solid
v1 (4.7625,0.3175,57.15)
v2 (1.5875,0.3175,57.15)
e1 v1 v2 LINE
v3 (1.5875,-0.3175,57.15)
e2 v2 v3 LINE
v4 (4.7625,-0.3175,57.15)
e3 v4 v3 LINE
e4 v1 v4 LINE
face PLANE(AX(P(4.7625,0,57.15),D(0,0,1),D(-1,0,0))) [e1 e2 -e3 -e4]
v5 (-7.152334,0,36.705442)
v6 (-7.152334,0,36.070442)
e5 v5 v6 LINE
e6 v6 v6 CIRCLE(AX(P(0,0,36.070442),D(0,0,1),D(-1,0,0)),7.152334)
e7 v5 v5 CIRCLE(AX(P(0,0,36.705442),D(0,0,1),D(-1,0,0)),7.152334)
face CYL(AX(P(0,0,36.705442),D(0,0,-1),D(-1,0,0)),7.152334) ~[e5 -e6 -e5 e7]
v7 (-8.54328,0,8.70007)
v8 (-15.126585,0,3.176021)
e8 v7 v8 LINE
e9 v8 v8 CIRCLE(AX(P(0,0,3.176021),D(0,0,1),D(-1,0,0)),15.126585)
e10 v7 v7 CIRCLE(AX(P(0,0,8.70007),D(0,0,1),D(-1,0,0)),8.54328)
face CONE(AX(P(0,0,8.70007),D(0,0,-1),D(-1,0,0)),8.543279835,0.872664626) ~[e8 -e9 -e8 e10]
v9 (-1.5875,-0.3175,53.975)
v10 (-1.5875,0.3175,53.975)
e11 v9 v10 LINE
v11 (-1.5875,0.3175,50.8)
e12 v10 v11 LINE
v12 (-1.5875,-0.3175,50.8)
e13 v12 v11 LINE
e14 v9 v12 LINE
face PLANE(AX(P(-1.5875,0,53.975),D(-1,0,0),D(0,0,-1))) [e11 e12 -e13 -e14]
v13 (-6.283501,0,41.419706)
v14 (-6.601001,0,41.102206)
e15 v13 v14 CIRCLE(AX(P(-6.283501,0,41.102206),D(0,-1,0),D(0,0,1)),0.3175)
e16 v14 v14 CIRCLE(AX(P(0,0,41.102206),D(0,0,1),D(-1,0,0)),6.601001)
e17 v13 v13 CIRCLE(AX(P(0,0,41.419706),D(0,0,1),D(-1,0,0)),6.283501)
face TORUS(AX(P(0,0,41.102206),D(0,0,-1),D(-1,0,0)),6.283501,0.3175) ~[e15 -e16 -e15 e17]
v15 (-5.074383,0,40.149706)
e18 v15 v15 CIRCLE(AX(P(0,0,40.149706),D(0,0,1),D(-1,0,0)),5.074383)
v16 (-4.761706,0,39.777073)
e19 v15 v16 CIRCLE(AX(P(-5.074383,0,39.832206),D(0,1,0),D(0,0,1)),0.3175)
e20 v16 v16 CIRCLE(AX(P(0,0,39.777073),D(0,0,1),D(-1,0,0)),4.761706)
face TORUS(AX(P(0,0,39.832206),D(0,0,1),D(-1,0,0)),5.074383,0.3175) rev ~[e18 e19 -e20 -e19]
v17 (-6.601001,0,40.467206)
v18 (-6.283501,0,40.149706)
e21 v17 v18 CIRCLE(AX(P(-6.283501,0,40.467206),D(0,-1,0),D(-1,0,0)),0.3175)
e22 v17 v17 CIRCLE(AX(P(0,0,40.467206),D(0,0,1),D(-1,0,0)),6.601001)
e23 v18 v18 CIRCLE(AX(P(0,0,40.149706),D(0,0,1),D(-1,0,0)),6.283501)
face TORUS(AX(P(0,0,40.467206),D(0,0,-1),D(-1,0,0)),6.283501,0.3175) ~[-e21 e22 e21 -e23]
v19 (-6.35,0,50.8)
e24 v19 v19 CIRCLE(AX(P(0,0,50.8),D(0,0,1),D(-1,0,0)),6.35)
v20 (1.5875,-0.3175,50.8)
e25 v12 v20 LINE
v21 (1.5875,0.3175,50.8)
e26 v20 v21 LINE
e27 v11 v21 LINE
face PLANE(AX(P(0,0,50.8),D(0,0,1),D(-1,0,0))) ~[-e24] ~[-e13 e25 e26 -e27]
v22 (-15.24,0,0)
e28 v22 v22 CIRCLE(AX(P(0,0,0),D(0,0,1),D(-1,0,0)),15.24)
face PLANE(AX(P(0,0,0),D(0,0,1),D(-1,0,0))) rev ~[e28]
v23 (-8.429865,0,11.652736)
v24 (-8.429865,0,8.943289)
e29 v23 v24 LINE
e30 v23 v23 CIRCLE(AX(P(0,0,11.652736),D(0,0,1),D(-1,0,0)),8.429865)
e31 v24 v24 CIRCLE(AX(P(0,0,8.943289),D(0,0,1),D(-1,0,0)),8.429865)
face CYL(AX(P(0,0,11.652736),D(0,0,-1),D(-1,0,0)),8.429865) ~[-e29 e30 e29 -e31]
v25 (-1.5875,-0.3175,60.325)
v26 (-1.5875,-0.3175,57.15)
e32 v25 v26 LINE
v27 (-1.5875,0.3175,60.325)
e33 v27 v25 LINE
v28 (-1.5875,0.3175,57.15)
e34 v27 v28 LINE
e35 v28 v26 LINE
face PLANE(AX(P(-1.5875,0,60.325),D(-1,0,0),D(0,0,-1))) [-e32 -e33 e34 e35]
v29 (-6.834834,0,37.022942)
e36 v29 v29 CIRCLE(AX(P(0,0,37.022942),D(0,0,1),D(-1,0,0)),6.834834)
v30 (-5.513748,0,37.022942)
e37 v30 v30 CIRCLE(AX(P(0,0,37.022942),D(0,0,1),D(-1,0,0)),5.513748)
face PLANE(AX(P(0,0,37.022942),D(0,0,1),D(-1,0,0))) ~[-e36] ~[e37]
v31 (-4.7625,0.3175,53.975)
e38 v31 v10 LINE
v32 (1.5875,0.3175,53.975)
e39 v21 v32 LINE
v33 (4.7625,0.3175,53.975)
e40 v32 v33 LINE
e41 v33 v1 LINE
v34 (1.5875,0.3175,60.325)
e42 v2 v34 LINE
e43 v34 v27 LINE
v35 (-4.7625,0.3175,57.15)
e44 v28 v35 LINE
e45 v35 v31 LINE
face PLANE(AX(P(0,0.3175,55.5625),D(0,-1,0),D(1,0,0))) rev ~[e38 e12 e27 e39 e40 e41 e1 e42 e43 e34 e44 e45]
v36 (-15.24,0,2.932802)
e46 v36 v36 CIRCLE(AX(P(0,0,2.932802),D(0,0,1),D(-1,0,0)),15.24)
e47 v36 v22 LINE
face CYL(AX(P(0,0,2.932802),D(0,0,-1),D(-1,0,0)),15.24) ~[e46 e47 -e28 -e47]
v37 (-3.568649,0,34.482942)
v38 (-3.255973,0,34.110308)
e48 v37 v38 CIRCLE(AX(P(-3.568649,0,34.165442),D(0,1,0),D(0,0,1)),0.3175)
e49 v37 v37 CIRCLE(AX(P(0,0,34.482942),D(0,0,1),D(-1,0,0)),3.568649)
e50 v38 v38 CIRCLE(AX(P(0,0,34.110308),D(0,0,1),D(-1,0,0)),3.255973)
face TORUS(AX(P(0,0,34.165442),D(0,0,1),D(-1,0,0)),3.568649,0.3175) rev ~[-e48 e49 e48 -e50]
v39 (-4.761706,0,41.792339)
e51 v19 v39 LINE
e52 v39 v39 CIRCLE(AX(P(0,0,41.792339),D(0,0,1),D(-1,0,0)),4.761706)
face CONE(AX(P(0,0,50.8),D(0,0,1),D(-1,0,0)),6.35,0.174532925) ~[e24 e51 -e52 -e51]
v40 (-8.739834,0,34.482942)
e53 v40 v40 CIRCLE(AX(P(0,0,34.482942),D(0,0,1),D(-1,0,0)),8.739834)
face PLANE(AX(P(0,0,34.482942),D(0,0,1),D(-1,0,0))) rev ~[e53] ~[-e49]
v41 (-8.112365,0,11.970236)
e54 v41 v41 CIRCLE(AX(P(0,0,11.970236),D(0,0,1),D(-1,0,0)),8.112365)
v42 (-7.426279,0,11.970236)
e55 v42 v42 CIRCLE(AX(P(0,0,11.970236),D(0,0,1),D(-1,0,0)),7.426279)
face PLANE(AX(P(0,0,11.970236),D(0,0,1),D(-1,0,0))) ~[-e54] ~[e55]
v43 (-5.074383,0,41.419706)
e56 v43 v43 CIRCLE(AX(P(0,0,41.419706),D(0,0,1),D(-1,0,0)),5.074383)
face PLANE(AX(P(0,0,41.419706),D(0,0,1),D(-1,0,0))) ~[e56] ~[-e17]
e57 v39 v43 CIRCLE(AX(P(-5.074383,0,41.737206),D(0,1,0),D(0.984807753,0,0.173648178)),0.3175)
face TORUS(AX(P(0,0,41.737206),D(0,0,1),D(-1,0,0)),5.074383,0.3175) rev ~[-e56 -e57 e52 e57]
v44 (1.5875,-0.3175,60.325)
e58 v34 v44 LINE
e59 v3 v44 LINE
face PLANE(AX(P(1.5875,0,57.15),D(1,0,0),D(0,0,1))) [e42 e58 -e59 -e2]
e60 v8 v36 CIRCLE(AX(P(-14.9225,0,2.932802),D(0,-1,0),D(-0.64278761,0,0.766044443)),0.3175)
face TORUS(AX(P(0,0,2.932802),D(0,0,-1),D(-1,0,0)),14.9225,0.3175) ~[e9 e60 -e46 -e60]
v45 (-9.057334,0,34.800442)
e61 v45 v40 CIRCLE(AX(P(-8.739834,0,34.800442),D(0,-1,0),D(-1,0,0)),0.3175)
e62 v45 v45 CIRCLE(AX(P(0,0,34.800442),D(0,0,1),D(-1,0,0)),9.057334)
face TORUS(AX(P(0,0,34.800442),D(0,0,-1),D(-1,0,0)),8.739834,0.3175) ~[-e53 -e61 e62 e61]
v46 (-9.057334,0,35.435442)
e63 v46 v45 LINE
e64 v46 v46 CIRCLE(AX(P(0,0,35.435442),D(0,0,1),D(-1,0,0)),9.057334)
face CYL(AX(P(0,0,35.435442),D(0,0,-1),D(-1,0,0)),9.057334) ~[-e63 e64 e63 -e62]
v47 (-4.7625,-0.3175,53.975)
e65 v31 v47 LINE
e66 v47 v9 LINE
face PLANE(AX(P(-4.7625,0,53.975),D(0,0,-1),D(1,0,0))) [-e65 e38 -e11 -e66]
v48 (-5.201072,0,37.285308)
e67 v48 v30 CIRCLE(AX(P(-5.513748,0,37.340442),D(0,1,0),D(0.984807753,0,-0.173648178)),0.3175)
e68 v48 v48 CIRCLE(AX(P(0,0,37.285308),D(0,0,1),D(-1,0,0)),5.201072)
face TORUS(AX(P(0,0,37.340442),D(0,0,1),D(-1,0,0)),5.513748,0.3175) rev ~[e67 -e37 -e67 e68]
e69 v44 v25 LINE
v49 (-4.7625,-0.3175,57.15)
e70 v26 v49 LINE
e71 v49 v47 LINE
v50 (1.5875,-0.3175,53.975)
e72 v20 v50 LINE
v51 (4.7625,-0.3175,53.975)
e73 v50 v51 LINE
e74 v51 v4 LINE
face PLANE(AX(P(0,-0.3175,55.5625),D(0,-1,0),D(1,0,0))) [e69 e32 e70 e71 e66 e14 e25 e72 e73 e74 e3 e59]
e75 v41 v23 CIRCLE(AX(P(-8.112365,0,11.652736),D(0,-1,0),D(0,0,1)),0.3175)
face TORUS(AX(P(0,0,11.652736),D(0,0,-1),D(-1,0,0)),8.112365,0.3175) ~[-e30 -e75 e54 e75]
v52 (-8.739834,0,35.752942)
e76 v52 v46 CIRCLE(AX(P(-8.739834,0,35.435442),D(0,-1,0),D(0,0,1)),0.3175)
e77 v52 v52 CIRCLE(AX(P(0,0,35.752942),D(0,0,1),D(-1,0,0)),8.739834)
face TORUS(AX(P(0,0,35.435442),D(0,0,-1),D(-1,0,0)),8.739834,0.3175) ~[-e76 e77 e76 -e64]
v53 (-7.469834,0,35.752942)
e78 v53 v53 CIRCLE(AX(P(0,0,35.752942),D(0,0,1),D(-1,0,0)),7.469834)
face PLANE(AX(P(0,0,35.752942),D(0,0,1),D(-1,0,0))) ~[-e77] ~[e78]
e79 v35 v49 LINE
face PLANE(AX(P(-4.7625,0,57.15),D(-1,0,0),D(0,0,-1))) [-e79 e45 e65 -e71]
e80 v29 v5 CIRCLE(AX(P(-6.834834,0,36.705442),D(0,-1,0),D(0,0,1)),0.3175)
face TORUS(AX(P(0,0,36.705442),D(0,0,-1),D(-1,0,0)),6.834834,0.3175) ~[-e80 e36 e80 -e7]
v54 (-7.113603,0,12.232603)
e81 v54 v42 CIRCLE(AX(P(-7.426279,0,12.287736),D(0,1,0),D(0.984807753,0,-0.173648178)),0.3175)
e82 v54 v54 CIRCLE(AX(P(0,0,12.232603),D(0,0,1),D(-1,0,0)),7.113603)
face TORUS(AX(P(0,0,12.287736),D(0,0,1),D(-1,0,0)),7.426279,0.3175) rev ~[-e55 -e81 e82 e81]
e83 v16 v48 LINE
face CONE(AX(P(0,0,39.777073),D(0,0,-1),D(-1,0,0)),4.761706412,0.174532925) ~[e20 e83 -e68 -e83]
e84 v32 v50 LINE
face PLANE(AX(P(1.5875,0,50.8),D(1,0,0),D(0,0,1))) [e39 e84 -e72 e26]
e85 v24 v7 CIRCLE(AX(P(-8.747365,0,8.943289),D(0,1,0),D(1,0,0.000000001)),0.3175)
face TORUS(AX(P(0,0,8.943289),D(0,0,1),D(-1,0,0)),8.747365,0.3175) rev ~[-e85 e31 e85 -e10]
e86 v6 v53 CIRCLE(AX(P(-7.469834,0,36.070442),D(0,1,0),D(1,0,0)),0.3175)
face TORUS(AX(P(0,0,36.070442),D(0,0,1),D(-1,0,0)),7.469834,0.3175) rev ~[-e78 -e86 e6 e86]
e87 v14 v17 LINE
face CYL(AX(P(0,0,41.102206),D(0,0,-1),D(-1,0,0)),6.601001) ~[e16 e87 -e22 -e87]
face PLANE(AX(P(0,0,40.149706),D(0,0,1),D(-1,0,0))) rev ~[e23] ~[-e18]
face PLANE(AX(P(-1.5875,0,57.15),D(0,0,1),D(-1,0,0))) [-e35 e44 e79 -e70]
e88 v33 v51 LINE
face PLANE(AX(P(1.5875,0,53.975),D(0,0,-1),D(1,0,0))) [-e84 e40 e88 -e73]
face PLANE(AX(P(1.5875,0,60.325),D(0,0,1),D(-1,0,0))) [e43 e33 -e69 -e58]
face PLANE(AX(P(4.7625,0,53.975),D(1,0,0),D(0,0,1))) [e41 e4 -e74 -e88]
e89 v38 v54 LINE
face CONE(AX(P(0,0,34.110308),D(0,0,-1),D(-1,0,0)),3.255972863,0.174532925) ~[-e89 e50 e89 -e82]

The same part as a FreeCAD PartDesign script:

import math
import FreeCAD as App
import Part
import Sketcher
Q = App.Units.Quantity

doc = App.newDocument("Part")
params = doc.addObject("Spreadsheet::Sheet", "Params")
for row, (alias, value) in enumerate([
    ("sketch1_height", "2 in"),
    ("sketch1_width", "0.6 in"),
    ("sketch1_width2", "0.25 in"),
    ("sketch1_width3", "0.05 in"),
    ("revolution_angle", "360 deg"),
    ("sketch2_width", "0.125 in"),
    ("pad1_length", "0.025 in"),
], start=1):
    params.set(f"A{row}", alias)
    params.set(f"B{row}", "=" + value)
    params.setAlias(f"B{row}", alias)

body = doc.addObject("PartDesign::Body", "Body")

# Sketch on XZ plane
sketch1 = body.newObject("Sketcher::SketchObject", "Sketch")
sketch1.AttachmentSupport = (doc.getObject("XZ_Plane"), [""])
sketch1.MapMode = "FlatFace"
sketch1.addGeometry(Part.LineSegment(App.Vector(-15.24, 0, 0), App.Vector(0, 0, 0)), False)
sketch1.addGeometry(Part.LineSegment(App.Vector(0, 0, 0), App.Vector(0, 50.8, 0)), False)
sketch1.addGeometry(Part.LineSegment(App.Vector(0, 50.8, 0), App.Vector(-6.35, 50.8, 0)), False)
sketch1.addGeometry(Part.LineSegment(App.Vector(-6.35, 50.8, 0), App.Vector(-4.76, 41.79, 0)), False)
sketch1.addGeometry(Part.ArcOfCircle(Part.Circle(App.Vector(-5.07, 41.74, 0), App.Vector(0, 0, 1), 0.32), math.radians(-90), math.radians(10)), False)
sketch1.addGeometry(Part.LineSegment(App.Vector(-5.07, 41.42, 0), App.Vector(-6.28, 41.42, 0)), False)
sketch1.addGeometry(Part.ArcOfCircle(Part.Circle(App.Vector(-6.28, 41.1, 0), App.Vector(0, 0, 1), 0.32), math.radians(90), math.radians(180)), False)
sketch1.addGeometry(Part.LineSegment(App.Vector(-6.6, 41.1, 0), App.Vector(-6.6, 40.47, 0)), False)
sketch1.addGeometry(Part.ArcOfCircle(Part.Circle(App.Vector(-6.28, 40.47, 0), App.Vector(0, 0, 1), 0.32), math.radians(180), math.radians(270)), False)
sketch1.addGeometry(Part.LineSegment(App.Vector(-6.28, 40.15, 0), App.Vector(-5.07, 40.15, 0)), False)
sketch1.addGeometry(Part.ArcOfCircle(Part.Circle(App.Vector(-5.07, 39.83, 0), App.Vector(0, 0, 1), 0.32), math.radians(-10), math.radians(90)), False)
sketch1.addGeometry(Part.LineSegment(App.Vector(-4.76, 39.78, 0), App.Vector(-5.2, 37.29, 0)), False)
sketch1.addGeometry(Part.ArcOfCircle(Part.Circle(App.Vector(-5.51, 37.34, 0), App.Vector(0, 0, 1), 0.32), math.radians(-90), math.radians(-10)), False)
sketch1.addGeometry(Part.LineSegment(App.Vector(-5.51, 37.02, 0), App.Vector(-6.83, 37.02, 0)), False)
sketch1.addGeometry(Part.ArcOfCircle(Part.Circle(App.Vector(-6.83, 36.71, 0), App.Vector(0, 0, 1), 0.32), math.radians(90), math.radians(180)), False)
sketch1.addGeometry(Part.LineSegment(App.Vector(-7.15, 36.71, 0), App.Vector(-7.15, 36.07, 0)), False)
sketch1.addGeometry(Part.ArcOfCircle(Part.Circle(App.Vector(-7.47, 36.07, 0), App.Vector(0, 0, 1), 0.32), math.radians(-90), math.radians(0)), False)
sketch1.addGeometry(Part.LineSegment(App.Vector(-7.47, 35.75, 0), App.Vector(-8.74, 35.75, 0)), False)
sketch1.addGeometry(Part.ArcOfCircle(Part.Circle(App.Vector(-8.74, 35.44, 0), App.Vector(0, 0, 1), 0.32), math.radians(90), math.radians(180)), False)
sketch1.addGeometry(Part.LineSegment(App.Vector(-9.06, 35.44, 0), App.Vector(-9.06, 34.8, 0)), False)
sketch1.addGeometry(Part.ArcOfCircle(Part.Circle(App.Vector(-8.74, 34.8, 0), App.Vector(0, 0, 1), 0.32), math.radians(180), math.radians(270)), False)
sketch1.addGeometry(Part.LineSegment(App.Vector(-8.74, 34.48, 0), App.Vector(-3.57, 34.48, 0)), False)
sketch1.addGeometry(Part.ArcOfCircle(Part.Circle(App.Vector(-3.57, 34.17, 0), App.Vector(0, 0, 1), 0.32), math.radians(-10), math.radians(90)), False)
sketch1.addGeometry(Part.LineSegment(App.Vector(-3.26, 34.11, 0), App.Vector(-7.11, 12.23, 0)), False)
sketch1.addGeometry(Part.ArcOfCircle(Part.Circle(App.Vector(-7.43, 12.29, 0), App.Vector(0, 0, 1), 0.32), math.radians(-90), math.radians(-10)), False)
sketch1.addGeometry(Part.LineSegment(App.Vector(-7.43, 11.97, 0), App.Vector(-8.11, 11.97, 0)), False)
sketch1.addGeometry(Part.ArcOfCircle(Part.Circle(App.Vector(-8.11, 11.65, 0), App.Vector(0, 0, 1), 0.32), math.radians(90), math.radians(180)), False)
sketch1.addGeometry(Part.LineSegment(App.Vector(-8.43, 11.65, 0), App.Vector(-8.43, 8.94, 0)), False)
sketch1.addGeometry(Part.ArcOfCircle(Part.Circle(App.Vector(-8.75, 8.94, 0), App.Vector(0, 0, 1), 0.32), math.radians(-50), math.radians(0)), False)
sketch1.addGeometry(Part.LineSegment(App.Vector(-8.54, 8.7, 0), App.Vector(-15.13, 3.18, 0)), False)
sketch1.addGeometry(Part.ArcOfCircle(Part.Circle(App.Vector(-14.92, 2.93, 0), App.Vector(0, 0, 1), 0.32), math.radians(130), math.radians(180)), False)
sketch1.addGeometry(Part.LineSegment(App.Vector(-15.24, 2.93, 0), App.Vector(-15.24, 0, 0)), False)
sketch1.addConstraint(Sketcher.Constraint("Coincident", 0, 2, 1, 1))
sketch1.addConstraint(Sketcher.Constraint("Coincident", 1, 2, 2, 1))
sketch1.addConstraint(Sketcher.Constraint("Coincident", 2, 2, 3, 1))
sketch1.addConstraint(Sketcher.Constraint("Tangent", 3, 2, 4, 2))
sketch1.addConstraint(Sketcher.Constraint("Tangent", 4, 1, 5, 1))
sketch1.addConstraint(Sketcher.Constraint("Tangent", 5, 2, 6, 1))
sketch1.addConstraint(Sketcher.Constraint("Tangent", 6, 2, 7, 1))
sketch1.addConstraint(Sketcher.Constraint("Tangent", 7, 2, 8, 1))
sketch1.addConstraint(Sketcher.Constraint("Tangent", 8, 2, 9, 1))
sketch1.addConstraint(Sketcher.Constraint("Tangent", 9, 2, 10, 2))
sketch1.addConstraint(Sketcher.Constraint("Tangent", 10, 1, 11, 1))
sketch1.addConstraint(Sketcher.Constraint("Tangent", 11, 2, 12, 2))
sketch1.addConstraint(Sketcher.Constraint("Tangent", 12, 1, 13, 1))
sketch1.addConstraint(Sketcher.Constraint("Tangent", 13, 2, 14, 1))
sketch1.addConstraint(Sketcher.Constraint("Tangent", 14, 2, 15, 1))
sketch1.addConstraint(Sketcher.Constraint("Tangent", 15, 2, 16, 2))
sketch1.addConstraint(Sketcher.Constraint("Tangent", 16, 1, 17, 1))
sketch1.addConstraint(Sketcher.Constraint("Tangent", 17, 2, 18, 1))
sketch1.addConstraint(Sketcher.Constraint("Tangent", 18, 2, 19, 1))
sketch1.addConstraint(Sketcher.Constraint("Tangent", 19, 2, 20, 1))
sketch1.addConstraint(Sketcher.Constraint("Tangent", 20, 2, 21, 1))
sketch1.addConstraint(Sketcher.Constraint("Tangent", 21, 2, 22, 2))
sketch1.addConstraint(Sketcher.Constraint("Tangent", 22, 1, 23, 1))
sketch1.addConstraint(Sketcher.Constraint("Tangent", 23, 2, 24, 2))
sketch1.addConstraint(Sketcher.Constraint("Tangent", 24, 1, 25, 1))
sketch1.addConstraint(Sketcher.Constraint("Tangent", 25, 2, 26, 1))
sketch1.addConstraint(Sketcher.Constraint("Tangent", 26, 2, 27, 1))
sketch1.addConstraint(Sketcher.Constraint("Tangent", 27, 2, 28, 2))
sketch1.addConstraint(Sketcher.Constraint("Tangent", 28, 1, 29, 1))
sketch1.addConstraint(Sketcher.Constraint("Tangent", 29, 2, 30, 1))
sketch1.addConstraint(Sketcher.Constraint("Tangent", 30, 2, 31, 1))
sketch1.addConstraint(Sketcher.Constraint("Coincident", 31, 2, 0, 1))
sketch1.addConstraint(Sketcher.Constraint("Horizontal", 0))
sketch1.addConstraint(Sketcher.Constraint("Vertical", 1))
sketch1.addConstraint(Sketcher.Constraint("Horizontal", 2))
sketch1.addConstraint(Sketcher.Constraint("Horizontal", 5))
sketch1.addConstraint(Sketcher.Constraint("Vertical", 7))
sketch1.addConstraint(Sketcher.Constraint("Horizontal", 9))
sketch1.addConstraint(Sketcher.Constraint("Horizontal", 13))
sketch1.addConstraint(Sketcher.Constraint("Vertical", 15))
sketch1.addConstraint(Sketcher.Constraint("Horizontal", 17))
sketch1.addConstraint(Sketcher.Constraint("Vertical", 19))
sketch1.addConstraint(Sketcher.Constraint("Horizontal", 21))
sketch1.addConstraint(Sketcher.Constraint("Horizontal", 25))
sketch1.addConstraint(Sketcher.Constraint("Vertical", 27))
sketch1.addConstraint(Sketcher.Constraint("Vertical", 31))
sketch1.addConstraint(Sketcher.Constraint("Coincident", 0, 2, -1, 1))
sketch1.addConstraint(Sketcher.Constraint("Equal", 4, 6))
sketch1.addConstraint(Sketcher.Constraint("Equal", 6, 8))
sketch1.addConstraint(Sketcher.Constraint("Equal", 8, 10))
sketch1.addConstraint(Sketcher.Constraint("Equal", 10, 12))
sketch1.addConstraint(Sketcher.Constraint("Equal", 12, 14))
sketch1.addConstraint(Sketcher.Constraint("Equal", 14, 16))
sketch1.addConstraint(Sketcher.Constraint("Equal", 16, 18))
sketch1.addConstraint(Sketcher.Constraint("Equal", 18, 20))
sketch1.addConstraint(Sketcher.Constraint("Equal", 20, 22))
sketch1.addConstraint(Sketcher.Constraint("Equal", 22, 24))
sketch1.addConstraint(Sketcher.Constraint("Equal", 24, 26))
sketch1.addConstraint(Sketcher.Constraint("Equal", 26, 28))
sketch1.addConstraint(Sketcher.Constraint("Equal", 28, 30))
sketch1.addConstraint(Sketcher.Constraint("Parallel", 11, 23))
sketch1.addConstraint(Sketcher.Constraint("Vertical", 4, 3, 10, 3))
sketch1.addConstraint(Sketcher.Constraint("Vertical", 3, 2, 10, 1))
sketch1.addConstraint(Sketcher.Constraint("Equal", 7, 15))
sketch1.addConstraint(Sketcher.Constraint("Equal", 15, 19))
sketch1.addConstraint(Sketcher.Constraint("DistanceY", 1, 1, 1, 2, Q("2 in")))
sketch1.addConstraint(Sketcher.Constraint("DistanceX", 0, 1, 0, 2, Q("0.6 in")))
sketch1.addConstraint(Sketcher.Constraint("Angle", 3, Q("-80 deg")))
sketch1.addConstraint(Sketcher.Constraint("Angle", 29, Q("-140 deg")))
sketch1.addConstraint(Sketcher.Constraint("DistanceX", 2, 2, 2, 1, Q("0.25 in")))
sketch1.addConstraint(Sketcher.Constraint("DistanceX", 17, 2, 17, 1, Q("0.05 in")))
sketch1.addConstraint(Sketcher.Constraint("Radius", 4, Q("0.0125 in")))
sketch1.addConstraint(Sketcher.Constraint("DistanceY", 20, 3, 12, 3, Q("0.1 in")))
sketch1.addConstraint(Sketcher.Constraint("DistanceY", 31, 2, 31, 1, Q("2.932802 mm")))
sketch1.addConstraint(Sketcher.Constraint("DistanceX", 5, 2, 5, 1, Q("1.209118 mm")))
sketch1.addConstraint(Sketcher.Constraint("DistanceX", 6, 3, -1, 1, Q("6.283501 mm")))
sketch1.addConstraint(Sketcher.Constraint("DistanceX", 12, 3, 22, 3, Q("1.945099 mm")))
sketch1.addConstraint(Sketcher.Constraint("DistanceY", 30, 3, 23, 2, Q("9.299801 mm")))
sketch1.addConstraint(Sketcher.Constraint("DistanceX", 13, 2, 13, 1, Q("1.321086 mm")))
sketch1.addConstraint(Sketcher.Constraint("DistanceX", 25, 2, 25, 1, Q("0.686086 mm")))
sketch1.addConstraint(Sketcher.Constraint("DistanceX", 12, 3, -1, 1, Q("5.513748 mm")))
sketch1.setExpression("Constraints[65]", "Params.sketch1_height")
sketch1.setExpression("Constraints[66]", "Params.sketch1_width")
sketch1.setExpression("Constraints[69]", "Params.sketch1_width2")
sketch1.setExpression("Constraints[70]", "Params.sketch1_width3")
revolution = body.newObject("PartDesign::Revolution", "Revolution")
revolution.Profile = sketch1
revolution.ReferenceAxis = (sketch1, ["V_Axis"])
revolution.setExpression("Angle", "Params.revolution_angle")

# Sketch on XZ plane
sketch2 = body.newObject("Sketcher::SketchObject", "Sketch001")
sketch2.AttachmentSupport = (doc.getObject("XZ_Plane"), [""])
sketch2.MapMode = "FlatFace"
sketch2.addGeometry(Part.LineSegment(App.Vector(1.6, 50.8, 0), App.Vector(1.6, 54, 0)), False)
sketch2.addGeometry(Part.LineSegment(App.Vector(1.6, 54, 0), App.Vector(4.8, 54, 0)), False)
sketch2.addGeometry(Part.LineSegment(App.Vector(4.8, 54, 0), App.Vector(4.8, 57.1, 0)), False)
sketch2.addGeometry(Part.LineSegment(App.Vector(4.8, 57.1, 0), App.Vector(1.6, 57.1, 0)), False)
sketch2.addGeometry(Part.LineSegment(App.Vector(1.6, 57.1, 0), App.Vector(1.6, 60.3, 0)), False)
sketch2.addGeometry(Part.LineSegment(App.Vector(1.6, 60.3, 0), App.Vector(-1.6, 60.3, 0)), False)
sketch2.addGeometry(Part.LineSegment(App.Vector(-1.6, 60.3, 0), App.Vector(-1.6, 57.1, 0)), False)
sketch2.addGeometry(Part.LineSegment(App.Vector(-1.6, 57.1, 0), App.Vector(-4.8, 57.1, 0)), False)
sketch2.addGeometry(Part.LineSegment(App.Vector(-4.8, 57.1, 0), App.Vector(-4.8, 54, 0)), False)
sketch2.addGeometry(Part.LineSegment(App.Vector(-4.8, 54, 0), App.Vector(-1.6, 54, 0)), False)
sketch2.addGeometry(Part.LineSegment(App.Vector(-1.6, 54, 0), App.Vector(-1.6, 50.8, 0)), False)
sketch2.addGeometry(Part.LineSegment(App.Vector(-1.6, 50.8, 0), App.Vector(1.6, 50.8, 0)), False)
sketch2.addConstraint(Sketcher.Constraint("Coincident", 0, 2, 1, 1))
sketch2.addConstraint(Sketcher.Constraint("Coincident", 1, 2, 2, 1))
sketch2.addConstraint(Sketcher.Constraint("Coincident", 2, 2, 3, 1))
sketch2.addConstraint(Sketcher.Constraint("Coincident", 3, 2, 4, 1))
sketch2.addConstraint(Sketcher.Constraint("Coincident", 4, 2, 5, 1))
sketch2.addConstraint(Sketcher.Constraint("Coincident", 5, 2, 6, 1))
sketch2.addConstraint(Sketcher.Constraint("Coincident", 6, 2, 7, 1))
sketch2.addConstraint(Sketcher.Constraint("Coincident", 7, 2, 8, 1))
sketch2.addConstraint(Sketcher.Constraint("Coincident", 8, 2, 9, 1))
sketch2.addConstraint(Sketcher.Constraint("Coincident", 9, 2, 10, 1))
sketch2.addConstraint(Sketcher.Constraint("Coincident", 10, 2, 11, 1))
sketch2.addConstraint(Sketcher.Constraint("Coincident", 11, 2, 0, 1))
sketch2.addConstraint(Sketcher.Constraint("Vertical", 0))
sketch2.addConstraint(Sketcher.Constraint("Horizontal", 1))
sketch2.addConstraint(Sketcher.Constraint("Vertical", 2))
sketch2.addConstraint(Sketcher.Constraint("Horizontal", 3))
sketch2.addConstraint(Sketcher.Constraint("Vertical", 4))
sketch2.addConstraint(Sketcher.Constraint("Horizontal", 5))
sketch2.addConstraint(Sketcher.Constraint("Vertical", 6))
sketch2.addConstraint(Sketcher.Constraint("Horizontal", 7))
sketch2.addConstraint(Sketcher.Constraint("Vertical", 8))
sketch2.addConstraint(Sketcher.Constraint("Horizontal", 9))
sketch2.addConstraint(Sketcher.Constraint("Vertical", 10))
sketch2.addConstraint(Sketcher.Constraint("Horizontal", 11))
sketch2.addConstraint(Sketcher.Constraint("Symmetric", 3, 2, 6, 2, -2))
sketch2.addConstraint(Sketcher.Constraint("Symmetric", 1, 2, 8, 2, -2))
sketch2.addConstraint(Sketcher.Constraint("Vertical", 0, 2, 3, 2))
sketch2.addConstraint(Sketcher.Constraint("Vertical", 6, 2, 9, 2))
sketch2.addConstraint(Sketcher.Constraint("Equal", 3, 5))
sketch2.addConstraint(Sketcher.Constraint("Equal", 11, 0))
sketch2.addConstraint(Sketcher.Constraint("Equal", 0, 2))
sketch2.addConstraint(Sketcher.Constraint("Equal", 2, 4))
sketch2.addConstraint(Sketcher.Constraint("DistanceY", -1, 1, 10, 2, Q("2 in")))
sketch2.addConstraint(Sketcher.Constraint("DistanceX", 1, 1, 1, 2, Q("0.125 in")))
sketch2.setExpression("Constraints[33]", "Params.sketch2_width")
pad1 = body.newObject("PartDesign::Pad", "Pad")
pad1.Profile = sketch2
pad1.setExpression("Length", "Params.pad1_length")
pad1.Midplane = True

doc.recompute()
